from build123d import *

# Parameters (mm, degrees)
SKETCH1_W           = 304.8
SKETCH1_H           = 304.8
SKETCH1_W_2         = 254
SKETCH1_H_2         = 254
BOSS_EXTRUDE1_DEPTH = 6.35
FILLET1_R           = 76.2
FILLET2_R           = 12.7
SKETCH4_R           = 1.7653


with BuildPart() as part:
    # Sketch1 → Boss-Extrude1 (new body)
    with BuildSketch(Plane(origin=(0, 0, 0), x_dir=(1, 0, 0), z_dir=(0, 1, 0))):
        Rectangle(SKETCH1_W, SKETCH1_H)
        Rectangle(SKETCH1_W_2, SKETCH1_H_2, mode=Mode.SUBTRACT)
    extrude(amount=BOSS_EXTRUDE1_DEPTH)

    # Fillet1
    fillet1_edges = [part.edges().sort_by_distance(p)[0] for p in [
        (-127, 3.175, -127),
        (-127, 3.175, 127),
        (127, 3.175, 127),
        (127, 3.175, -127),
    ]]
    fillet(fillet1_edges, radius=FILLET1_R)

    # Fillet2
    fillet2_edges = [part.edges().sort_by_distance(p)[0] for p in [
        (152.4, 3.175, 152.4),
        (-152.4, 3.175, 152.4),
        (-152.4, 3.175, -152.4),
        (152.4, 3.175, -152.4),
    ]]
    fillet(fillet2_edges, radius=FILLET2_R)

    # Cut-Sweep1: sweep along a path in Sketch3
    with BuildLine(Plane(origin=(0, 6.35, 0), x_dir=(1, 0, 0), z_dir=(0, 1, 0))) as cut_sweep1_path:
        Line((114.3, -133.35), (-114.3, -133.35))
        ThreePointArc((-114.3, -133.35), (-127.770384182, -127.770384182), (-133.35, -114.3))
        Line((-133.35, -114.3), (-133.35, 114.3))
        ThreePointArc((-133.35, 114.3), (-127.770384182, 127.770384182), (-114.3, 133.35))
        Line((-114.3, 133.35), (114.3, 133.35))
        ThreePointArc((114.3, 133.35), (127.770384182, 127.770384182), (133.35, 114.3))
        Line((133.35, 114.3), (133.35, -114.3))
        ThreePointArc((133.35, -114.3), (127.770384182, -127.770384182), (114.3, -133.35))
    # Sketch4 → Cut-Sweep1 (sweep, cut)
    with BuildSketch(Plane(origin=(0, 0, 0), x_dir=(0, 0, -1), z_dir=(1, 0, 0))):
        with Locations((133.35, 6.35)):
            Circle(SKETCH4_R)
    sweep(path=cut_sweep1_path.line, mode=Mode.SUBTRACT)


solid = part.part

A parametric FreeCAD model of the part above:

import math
import FreeCAD as App
import Part
import Sketcher
from FreeCAD import Vector
Q = App.Units.Quantity


def edges_at(feature, points):
    """Names of the edges that pass closest to the given points."""
    edges = feature.Shape.Edges
    near = lambda p: min(range(len(edges)), key=lambda i: edges[i].distToShape(Part.Vertex(*p))[0])
    return sorted({f"Edge{near(p) + 1}" for p in points})

doc = App.newDocument("Part")
body = doc.addObject("PartDesign::Body", "Body")

# Sketch on XZ plane
sketch1 = doc.addObject("Sketcher::SketchObject", "Sketch")
body.addObject(sketch1)
sketch1.AttachmentSupport = (doc.XZ_Plane, [""])
sketch1.MapMode = "FlatFace"
sketch1.addGeometry([
    Part.LineSegment(Vector(-152, -152, 0), Vector(-152, 152, 0)),  # 0
    Part.LineSegment(Vector(-152, 152, 0), Vector(152, 152, 0)),  # 1
    Part.LineSegment(Vector(152, 152, 0), Vector(152, -152, 0)),  # 2
    Part.LineSegment(Vector(152, -152, 0), Vector(-152, -152, 0)),  # 3
    Part.LineSegment(Vector(127, 127, 0), Vector(-127, 127, 0)),  # 4
    Part.LineSegment(Vector(-127, 127, 0), Vector(-127, -127, 0)),  # 5
    Part.LineSegment(Vector(-127, -127, 0), Vector(127, -127, 0)),  # 6
    Part.LineSegment(Vector(127, -127, 0), Vector(127, 127, 0)),  # 7
], False)
sketch1.addConstraint([
    Sketcher.Constraint("Coincident", 0, 2, 1, 1),
    Sketcher.Constraint("Coincident", 1, 2, 2, 1),
    Sketcher.Constraint("Coincident", 2, 2, 3, 1),
    Sketcher.Constraint("Coincident", 3, 2, 0, 1),
    Sketcher.Constraint("Coincident", 4, 2, 5, 1),
    Sketcher.Constraint("Coincident", 5, 2, 6, 1),
    Sketcher.Constraint("Coincident", 6, 2, 7, 1),
    Sketcher.Constraint("Coincident", 7, 2, 4, 1),
    Sketcher.Constraint("Vertical", 0),
    Sketcher.Constraint("Horizontal", 1),
    Sketcher.Constraint("Vertical", 2),
    Sketcher.Constraint("Horizontal", 3),
    Sketcher.Constraint("Horizontal", 4),
    Sketcher.Constraint("Vertical", 5),
    Sketcher.Constraint("Horizontal", 6),
    Sketcher.Constraint("Vertical", 7),
    Sketcher.Constraint("Symmetric", 0, 2, 2, 2, -1, 1),
    Sketcher.Constraint("Symmetric", 4, 2, 6, 2, -1, 1),
    Sketcher.Constraint("Equal", 3, 0),
    Sketcher.Constraint("Equal", 6, 5),
    Sketcher.Constraint("DistanceX", 1, 1, 1, 2, Q("12 in")),
    Sketcher.Constraint("DistanceX", 4, 2, 4, 1, Q("10 in")),
])
pad1 = doc.addObject("PartDesign::Pad", "Pad")
body.addObject(pad1)
pad1.Profile = sketch1
pad1.Length = Q("0.25 in")
pad1.Reversed = True
doc.recompute()

fillet = doc.addObject("PartDesign::Fillet", "Fillet")
body.addObject(fillet)
fillet.Base = (pad1, edges_at(pad1, [
    (-127, 3.175, -127),
    (-127, 3.175, 127),
    (127, 3.175, 127),
    (127, 3.175, -127),
]))
fillet.Radius = Q("3 in")
doc.recompute()

fillet2 = doc.addObject("PartDesign::Fillet", "Fillet001")
body.addObject(fillet2)
fillet2.Base = (fillet, edges_at(fillet, [
    (152.4, 3.175, 152.4),
    (-152.4, 3.175, 152.4),
    (-152.4, 3.175, -152.4),
    (152.4, 3.175, -152.4),
]))
fillet2.Radius = Q("0.5 in")

# Sketch on YZ plane
sketch2 = doc.addObject("Sketcher::SketchObject", "Sketch001")
body.addObject(sketch2)
sketch2.AttachmentSupport = (doc.YZ_Plane, [""])
sketch2.MapMode = "FlatFace"
sketch2.addGeometry(Part.Circle(Vector(6.3, -133.3, 0), Vector(0, 0, 1), 1.8), False)
sketch2.addConstraint([
    Sketcher.Constraint("Diameter", 0, Q("0.139 in")),
    Sketcher.Constraint("DistanceX", -1, 1, 0, 3, Q("0.25 in")),
    Sketcher.Constraint("DistanceY", 0, 3, -1, 1, Q("5.25 in")),
])

# Sketch on XZ plane
sketch3 = doc.addObject("Sketcher::SketchObject", "Sketch002")
body.addObject(sketch3)
sketch3.AttachmentSupport = (doc.XZ_Plane, [""])
sketch3.MapMode = "FlatFace"
sketch3.AttachmentOffset = App.Placement(Vector(0, 0, -0.25 * 25.4), App.Rotation())
sketch3.addGeometry([
    Part.LineSegment(Vector(114, 133, 0), Vector(-114, 133, 0)),  # 0
    Part.ArcOfCircle(Part.Circle(Vector(-114, 114, 0), Vector(0, 0, 1), 19), math.radians(90), math.radians(180)),  # 1
    Part.LineSegment(Vector(-133, 114, 0), Vector(-133, -114, 0)),  # 2
    Part.ArcOfCircle(Part.Circle(Vector(-114, -114, 0), Vector(0, 0, 1), 19), math.radians(180), math.radians(270)),  # 3
    Part.LineSegment(Vector(-114, -133, 0), Vector(114, -133, 0)),  # 4
    Part.ArcOfCircle(Part.Circle(Vector(114, -114, 0), Vector(0, 0, 1), 19), math.radians(-90), math.radians(0)),  # 5
    Part.LineSegment(Vector(133, -114, 0), Vector(133, 114, 0)),  # 6
    Part.ArcOfCircle(Part.Circle(Vector(114, 114, 0), Vector(0, 0, 1), 19), math.radians(0), math.radians(90)),  # 7
], False)
sketch3.addConstraint([
    Sketcher.Constraint("Tangent", 0, 2, 1, 1),
    Sketcher.Constraint("Tangent", 1, 2, 2, 1),
    Sketcher.Constraint("Tangent", 2, 2, 3, 1),
    Sketcher.Constraint("Tangent", 3, 2, 4, 1),
    Sketcher.Constraint("Tangent", 4, 2, 5, 1),
    Sketcher.Constraint("Tangent", 5, 2, 6, 1),
    Sketcher.Constraint("Tangent", 6, 2, 7, 1),
    Sketcher.Constraint("Tangent", 7, 2, 0, 1),
    Sketcher.Constraint("Horizontal", 0),
    Sketcher.Constraint("Vertical", 2),
    Sketcher.Constraint("Horizontal", 4),
    Sketcher.Constraint("Vertical", 6),
    Sketcher.Constraint("Equal", 1, 3),
    Sketcher.Constraint("Equal", 3, 5),
    Sketcher.Constraint("Equal", 5, 7),
    Sketcher.Constraint("Symmetric", 1, 3, 5, 3, -1, 1),
    Sketcher.Constraint("Equal", 4, 2),
    Sketcher.Constraint("DistanceX", 0, 2, 0, 1, Q("9 in")),
    Sketcher.Constraint("Radius", 1, Q("0.75 in")),
])
doc.recompute()

subtractivepipe = doc.addObject("PartDesign::SubtractivePipe", "SubtractivePipe")
body.addObject(subtractivepipe)
subtractivepipe.Profile = sketch2
subtractivepipe.Spine = (sketch3, ["Edge1", "Edge2", "Edge3", "Edge4", "Edge5", "Edge6", "Edge7", "Edge8"])

doc.recompute()
